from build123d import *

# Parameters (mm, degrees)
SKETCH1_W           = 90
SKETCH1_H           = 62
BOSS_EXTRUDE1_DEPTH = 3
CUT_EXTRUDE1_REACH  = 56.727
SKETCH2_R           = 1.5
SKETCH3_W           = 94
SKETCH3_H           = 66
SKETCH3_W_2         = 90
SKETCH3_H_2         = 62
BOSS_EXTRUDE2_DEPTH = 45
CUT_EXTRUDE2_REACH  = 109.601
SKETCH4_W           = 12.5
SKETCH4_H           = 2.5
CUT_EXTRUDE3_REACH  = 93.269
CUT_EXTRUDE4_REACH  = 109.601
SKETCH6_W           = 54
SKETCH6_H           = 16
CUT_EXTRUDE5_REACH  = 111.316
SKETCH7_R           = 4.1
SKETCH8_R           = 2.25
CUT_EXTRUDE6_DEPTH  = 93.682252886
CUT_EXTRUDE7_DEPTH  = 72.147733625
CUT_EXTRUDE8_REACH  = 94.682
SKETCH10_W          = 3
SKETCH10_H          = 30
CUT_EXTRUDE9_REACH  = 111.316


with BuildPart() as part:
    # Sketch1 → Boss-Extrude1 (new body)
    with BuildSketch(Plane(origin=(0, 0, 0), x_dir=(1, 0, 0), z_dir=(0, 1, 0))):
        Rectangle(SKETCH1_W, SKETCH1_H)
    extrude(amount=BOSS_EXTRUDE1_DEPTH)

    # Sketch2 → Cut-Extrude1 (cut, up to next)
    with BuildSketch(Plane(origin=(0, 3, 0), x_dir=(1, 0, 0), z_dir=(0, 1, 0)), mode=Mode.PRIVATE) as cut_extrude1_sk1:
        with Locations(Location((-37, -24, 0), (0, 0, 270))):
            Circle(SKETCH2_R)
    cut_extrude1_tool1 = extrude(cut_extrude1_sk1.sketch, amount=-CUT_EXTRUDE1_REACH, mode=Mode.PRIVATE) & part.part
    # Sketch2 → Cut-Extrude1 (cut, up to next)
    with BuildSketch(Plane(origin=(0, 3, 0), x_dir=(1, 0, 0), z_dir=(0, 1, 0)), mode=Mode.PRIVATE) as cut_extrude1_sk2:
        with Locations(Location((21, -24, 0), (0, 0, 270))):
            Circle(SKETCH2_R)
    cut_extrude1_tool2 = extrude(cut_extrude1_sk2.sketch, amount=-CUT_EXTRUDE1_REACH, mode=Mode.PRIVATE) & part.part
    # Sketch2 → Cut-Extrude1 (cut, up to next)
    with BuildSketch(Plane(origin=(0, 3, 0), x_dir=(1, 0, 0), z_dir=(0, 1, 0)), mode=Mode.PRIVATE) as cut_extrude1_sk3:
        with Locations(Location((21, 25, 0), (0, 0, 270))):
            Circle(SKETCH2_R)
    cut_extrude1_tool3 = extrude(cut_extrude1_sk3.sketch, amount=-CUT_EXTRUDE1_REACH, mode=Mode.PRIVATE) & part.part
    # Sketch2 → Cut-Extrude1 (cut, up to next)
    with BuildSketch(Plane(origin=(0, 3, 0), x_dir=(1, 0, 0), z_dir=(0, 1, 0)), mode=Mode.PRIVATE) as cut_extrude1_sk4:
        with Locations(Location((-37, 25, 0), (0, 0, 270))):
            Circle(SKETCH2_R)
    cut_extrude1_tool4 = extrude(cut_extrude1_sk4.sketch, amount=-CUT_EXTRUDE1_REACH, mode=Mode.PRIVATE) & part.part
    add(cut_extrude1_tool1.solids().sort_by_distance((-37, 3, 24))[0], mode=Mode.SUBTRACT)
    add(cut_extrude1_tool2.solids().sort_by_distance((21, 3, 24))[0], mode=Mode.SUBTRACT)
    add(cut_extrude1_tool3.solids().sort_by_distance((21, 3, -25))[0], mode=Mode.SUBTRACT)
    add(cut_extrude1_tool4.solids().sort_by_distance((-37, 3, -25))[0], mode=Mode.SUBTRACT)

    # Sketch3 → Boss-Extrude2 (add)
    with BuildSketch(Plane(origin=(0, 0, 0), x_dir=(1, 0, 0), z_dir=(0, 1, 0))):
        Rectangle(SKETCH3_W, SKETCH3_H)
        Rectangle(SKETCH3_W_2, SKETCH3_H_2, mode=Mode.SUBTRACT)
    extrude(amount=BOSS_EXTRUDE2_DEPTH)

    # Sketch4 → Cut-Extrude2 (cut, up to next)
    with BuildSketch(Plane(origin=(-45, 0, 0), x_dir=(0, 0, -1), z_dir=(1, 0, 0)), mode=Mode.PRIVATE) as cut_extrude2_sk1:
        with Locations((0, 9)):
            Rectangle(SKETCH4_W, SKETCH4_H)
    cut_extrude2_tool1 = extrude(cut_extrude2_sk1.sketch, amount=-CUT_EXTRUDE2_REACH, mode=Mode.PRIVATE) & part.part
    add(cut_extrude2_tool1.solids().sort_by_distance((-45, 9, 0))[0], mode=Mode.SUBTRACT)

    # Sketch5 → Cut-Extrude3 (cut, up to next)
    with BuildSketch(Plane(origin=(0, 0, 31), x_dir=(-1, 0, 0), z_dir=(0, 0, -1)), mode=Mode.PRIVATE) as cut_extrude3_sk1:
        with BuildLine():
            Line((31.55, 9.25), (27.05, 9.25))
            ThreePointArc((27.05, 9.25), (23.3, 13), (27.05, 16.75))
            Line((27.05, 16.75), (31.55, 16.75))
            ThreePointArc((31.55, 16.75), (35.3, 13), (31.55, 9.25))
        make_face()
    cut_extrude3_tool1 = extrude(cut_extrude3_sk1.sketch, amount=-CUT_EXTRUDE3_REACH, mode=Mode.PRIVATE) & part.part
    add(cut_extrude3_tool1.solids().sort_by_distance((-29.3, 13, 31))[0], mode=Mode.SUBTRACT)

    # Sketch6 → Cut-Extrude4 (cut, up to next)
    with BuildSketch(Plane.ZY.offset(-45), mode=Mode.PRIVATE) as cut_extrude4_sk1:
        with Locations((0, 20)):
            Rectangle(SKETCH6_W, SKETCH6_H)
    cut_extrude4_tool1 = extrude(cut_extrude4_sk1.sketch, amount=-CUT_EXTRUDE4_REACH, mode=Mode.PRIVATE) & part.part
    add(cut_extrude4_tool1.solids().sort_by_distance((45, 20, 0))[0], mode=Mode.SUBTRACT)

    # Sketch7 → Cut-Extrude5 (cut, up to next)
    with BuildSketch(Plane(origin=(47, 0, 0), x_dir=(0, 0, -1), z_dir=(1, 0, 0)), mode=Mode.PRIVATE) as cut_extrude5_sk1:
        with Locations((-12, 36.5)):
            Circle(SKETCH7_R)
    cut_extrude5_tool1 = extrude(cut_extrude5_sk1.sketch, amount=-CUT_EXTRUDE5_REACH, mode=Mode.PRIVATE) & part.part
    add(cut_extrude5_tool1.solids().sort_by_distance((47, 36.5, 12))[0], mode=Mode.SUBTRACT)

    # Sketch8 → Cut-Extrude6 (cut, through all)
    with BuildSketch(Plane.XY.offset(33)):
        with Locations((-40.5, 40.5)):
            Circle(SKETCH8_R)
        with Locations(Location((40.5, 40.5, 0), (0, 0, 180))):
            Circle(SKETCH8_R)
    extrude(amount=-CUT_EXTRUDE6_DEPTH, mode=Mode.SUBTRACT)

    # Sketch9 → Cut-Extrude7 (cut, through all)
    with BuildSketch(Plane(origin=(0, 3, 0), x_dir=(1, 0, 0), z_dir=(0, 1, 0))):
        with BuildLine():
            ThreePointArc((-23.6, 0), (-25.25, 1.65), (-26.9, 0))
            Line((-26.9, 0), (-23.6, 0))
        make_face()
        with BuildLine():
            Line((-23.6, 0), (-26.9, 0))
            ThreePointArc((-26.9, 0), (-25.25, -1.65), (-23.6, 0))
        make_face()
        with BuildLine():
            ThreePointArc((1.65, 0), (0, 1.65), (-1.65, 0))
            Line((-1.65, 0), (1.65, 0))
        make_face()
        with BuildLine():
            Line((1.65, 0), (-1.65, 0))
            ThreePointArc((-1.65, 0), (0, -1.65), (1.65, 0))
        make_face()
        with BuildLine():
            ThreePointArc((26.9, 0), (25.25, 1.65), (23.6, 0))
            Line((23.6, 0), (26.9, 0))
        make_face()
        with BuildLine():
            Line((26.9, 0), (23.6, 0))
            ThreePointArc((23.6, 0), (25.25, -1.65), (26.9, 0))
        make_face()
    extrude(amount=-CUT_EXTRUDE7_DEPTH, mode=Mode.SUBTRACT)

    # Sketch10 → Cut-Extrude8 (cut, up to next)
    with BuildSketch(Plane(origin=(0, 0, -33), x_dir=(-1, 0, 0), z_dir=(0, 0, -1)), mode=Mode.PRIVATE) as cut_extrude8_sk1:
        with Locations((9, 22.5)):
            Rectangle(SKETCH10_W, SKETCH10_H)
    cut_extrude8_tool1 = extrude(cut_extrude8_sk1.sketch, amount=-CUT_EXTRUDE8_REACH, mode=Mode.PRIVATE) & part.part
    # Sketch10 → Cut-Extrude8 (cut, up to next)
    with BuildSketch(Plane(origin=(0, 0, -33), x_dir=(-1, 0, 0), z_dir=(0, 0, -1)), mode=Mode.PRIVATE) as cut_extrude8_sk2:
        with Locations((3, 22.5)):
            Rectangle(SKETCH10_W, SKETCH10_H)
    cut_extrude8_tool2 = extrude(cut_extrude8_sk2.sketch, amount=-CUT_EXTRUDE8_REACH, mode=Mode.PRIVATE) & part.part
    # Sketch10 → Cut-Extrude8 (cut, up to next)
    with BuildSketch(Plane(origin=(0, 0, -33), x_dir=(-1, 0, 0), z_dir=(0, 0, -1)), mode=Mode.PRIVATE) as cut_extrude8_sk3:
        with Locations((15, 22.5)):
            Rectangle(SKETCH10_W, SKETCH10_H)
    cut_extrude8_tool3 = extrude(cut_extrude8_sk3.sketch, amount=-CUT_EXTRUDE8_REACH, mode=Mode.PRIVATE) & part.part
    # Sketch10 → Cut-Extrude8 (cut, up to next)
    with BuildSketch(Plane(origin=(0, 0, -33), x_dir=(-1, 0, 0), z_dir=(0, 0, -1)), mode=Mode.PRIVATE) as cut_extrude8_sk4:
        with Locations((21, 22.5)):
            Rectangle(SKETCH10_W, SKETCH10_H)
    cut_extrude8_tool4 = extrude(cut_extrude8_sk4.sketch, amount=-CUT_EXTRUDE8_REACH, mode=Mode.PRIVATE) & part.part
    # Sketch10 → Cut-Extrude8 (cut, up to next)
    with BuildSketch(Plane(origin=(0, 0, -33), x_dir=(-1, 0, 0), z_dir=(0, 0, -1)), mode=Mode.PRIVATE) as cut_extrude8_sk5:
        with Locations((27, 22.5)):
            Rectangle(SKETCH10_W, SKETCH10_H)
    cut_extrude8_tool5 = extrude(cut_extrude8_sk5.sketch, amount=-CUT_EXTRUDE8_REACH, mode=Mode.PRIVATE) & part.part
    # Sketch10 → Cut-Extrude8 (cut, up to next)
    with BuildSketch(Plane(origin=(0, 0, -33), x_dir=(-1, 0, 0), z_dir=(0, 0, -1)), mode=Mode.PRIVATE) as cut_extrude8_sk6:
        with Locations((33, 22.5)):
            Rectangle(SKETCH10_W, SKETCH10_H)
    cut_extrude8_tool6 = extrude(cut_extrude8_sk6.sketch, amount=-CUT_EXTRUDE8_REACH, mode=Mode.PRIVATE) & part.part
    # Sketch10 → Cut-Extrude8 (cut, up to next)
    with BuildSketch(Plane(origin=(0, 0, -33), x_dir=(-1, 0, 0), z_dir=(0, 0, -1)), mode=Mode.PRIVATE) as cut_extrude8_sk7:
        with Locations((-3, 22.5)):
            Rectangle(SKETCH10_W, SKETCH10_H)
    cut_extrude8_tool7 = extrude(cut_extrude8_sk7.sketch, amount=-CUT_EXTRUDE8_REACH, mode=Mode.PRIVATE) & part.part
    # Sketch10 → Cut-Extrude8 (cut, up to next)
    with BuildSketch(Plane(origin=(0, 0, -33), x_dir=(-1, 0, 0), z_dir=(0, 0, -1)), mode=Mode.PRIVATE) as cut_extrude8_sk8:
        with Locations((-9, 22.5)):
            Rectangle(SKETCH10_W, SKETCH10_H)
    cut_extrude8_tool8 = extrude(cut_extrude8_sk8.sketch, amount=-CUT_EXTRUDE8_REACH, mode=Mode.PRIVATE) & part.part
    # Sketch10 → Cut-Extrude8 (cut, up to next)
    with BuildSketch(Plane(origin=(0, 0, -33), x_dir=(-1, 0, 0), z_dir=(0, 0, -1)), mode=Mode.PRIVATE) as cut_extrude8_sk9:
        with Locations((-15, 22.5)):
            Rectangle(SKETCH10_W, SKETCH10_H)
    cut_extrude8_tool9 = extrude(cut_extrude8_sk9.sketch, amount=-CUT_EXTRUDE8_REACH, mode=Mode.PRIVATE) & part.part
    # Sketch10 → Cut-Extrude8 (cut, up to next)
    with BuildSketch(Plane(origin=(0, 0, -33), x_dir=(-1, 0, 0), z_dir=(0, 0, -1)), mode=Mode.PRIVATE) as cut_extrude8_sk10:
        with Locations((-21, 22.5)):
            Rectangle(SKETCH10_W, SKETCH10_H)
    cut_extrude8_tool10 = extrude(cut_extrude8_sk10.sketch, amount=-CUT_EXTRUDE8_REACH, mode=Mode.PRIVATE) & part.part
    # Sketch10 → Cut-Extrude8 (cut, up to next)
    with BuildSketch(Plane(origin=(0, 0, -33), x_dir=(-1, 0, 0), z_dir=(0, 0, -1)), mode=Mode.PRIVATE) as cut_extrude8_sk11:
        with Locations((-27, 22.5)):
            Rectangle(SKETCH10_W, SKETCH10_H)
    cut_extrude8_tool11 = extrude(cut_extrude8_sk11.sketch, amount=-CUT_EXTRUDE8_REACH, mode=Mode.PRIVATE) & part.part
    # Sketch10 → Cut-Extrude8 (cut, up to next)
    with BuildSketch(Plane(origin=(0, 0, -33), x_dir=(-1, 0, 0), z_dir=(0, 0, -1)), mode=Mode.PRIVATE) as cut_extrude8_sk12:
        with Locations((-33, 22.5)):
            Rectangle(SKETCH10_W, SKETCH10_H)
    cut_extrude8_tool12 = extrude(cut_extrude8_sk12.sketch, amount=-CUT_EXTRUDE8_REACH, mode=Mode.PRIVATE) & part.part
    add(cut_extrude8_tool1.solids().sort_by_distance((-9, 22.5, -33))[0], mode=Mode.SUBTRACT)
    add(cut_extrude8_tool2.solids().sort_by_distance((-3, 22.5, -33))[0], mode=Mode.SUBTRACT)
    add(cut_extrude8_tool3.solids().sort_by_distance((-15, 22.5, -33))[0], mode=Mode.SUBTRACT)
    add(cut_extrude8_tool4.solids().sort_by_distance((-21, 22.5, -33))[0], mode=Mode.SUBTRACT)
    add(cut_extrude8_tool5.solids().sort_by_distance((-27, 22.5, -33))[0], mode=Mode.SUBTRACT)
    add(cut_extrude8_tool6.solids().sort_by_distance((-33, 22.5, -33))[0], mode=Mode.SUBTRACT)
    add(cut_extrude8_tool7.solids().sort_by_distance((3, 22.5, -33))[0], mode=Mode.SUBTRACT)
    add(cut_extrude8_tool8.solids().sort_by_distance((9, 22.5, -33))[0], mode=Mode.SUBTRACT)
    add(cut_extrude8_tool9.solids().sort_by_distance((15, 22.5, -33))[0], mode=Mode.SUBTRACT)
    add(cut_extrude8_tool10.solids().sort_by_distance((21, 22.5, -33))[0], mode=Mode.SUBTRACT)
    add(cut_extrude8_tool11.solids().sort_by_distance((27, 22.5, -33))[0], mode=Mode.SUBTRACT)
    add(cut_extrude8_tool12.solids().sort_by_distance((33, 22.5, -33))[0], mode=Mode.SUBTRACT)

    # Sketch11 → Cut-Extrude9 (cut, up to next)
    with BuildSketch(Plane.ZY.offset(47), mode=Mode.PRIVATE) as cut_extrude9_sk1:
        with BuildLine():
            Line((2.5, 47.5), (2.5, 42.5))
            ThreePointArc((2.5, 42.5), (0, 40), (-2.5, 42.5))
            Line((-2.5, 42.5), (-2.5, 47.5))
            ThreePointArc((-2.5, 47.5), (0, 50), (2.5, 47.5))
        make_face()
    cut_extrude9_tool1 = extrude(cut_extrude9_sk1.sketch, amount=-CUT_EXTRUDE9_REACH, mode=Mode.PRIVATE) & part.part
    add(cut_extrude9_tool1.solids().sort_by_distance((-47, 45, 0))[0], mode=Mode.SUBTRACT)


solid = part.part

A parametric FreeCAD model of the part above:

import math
import FreeCAD as App
import Part
import Sketcher


def add_polygon(sketch, points):
    """Adds a closed chain of lines whose ends are joined by coincident constraints."""
    first, n = sketch.GeometryCount, len(points)
    for a, b in zip(points, points[1:] + points[:1]):
        sketch.addGeometry(Part.LineSegment(App.Vector(*a, 0), App.Vector(*b, 0)), False)
    for i in range(n):
        sketch.addConstraint(Sketcher.Constraint("Coincident", first + i, 2, first + (i + 1) % n, 1))

doc = App.newDocument("Part")
body = doc.addObject("PartDesign::Body", "Body")

# Sketch on XZ plane
sketch1 = doc.addObject("Sketcher::SketchObject", "Sketch")
body.addObject(sketch1)
sketch1.AttachmentSupport = (doc.XZ_Plane, [""])
sketch1.MapMode = "FlatFace"
add_polygon(sketch1, [(-45, -31), (-45, 31), (45, 31), (45, -31)])  # lines 0-3
sketch1.addConstraint(Sketcher.Constraint("Vertical", 0))
sketch1.addConstraint(Sketcher.Constraint("Horizontal", 1))
sketch1.addConstraint(Sketcher.Constraint("Vertical", 2))
sketch1.addConstraint(Sketcher.Constraint("Horizontal", 3))
sketch1.addConstraint(Sketcher.Constraint("Symmetric", 0, 2, 2, 2, -1, 1))
sketch1.addConstraint(Sketcher.Constraint("DistanceX", 1, 1, 1, 2, 90.0))
sketch1.addConstraint(Sketcher.Constraint("DistanceY", 0, 1, 0, 2, 62.0))
pad1 = doc.addObject("PartDesign::Pad", "Pad")
body.addObject(pad1)
pad1.Profile = sketch1
pad1.Length = 3
pad1.Reversed = True

# Sketch on XZ plane
sketch2 = doc.addObject("Sketcher::SketchObject", "Sketch001")
body.addObject(sketch2)
sketch2.AttachmentSupport = (doc.XZ_Plane, [""])
sketch2.MapMode = "FlatFace"
sketch2.AttachmentOffset = App.Placement(App.Vector(0, 0, -3), App.Rotation())
sketch2.addGeometry(Part.Circle(App.Vector(-37, 24, 0), App.Vector(0, 0, 1), 1.5), False)
sketch2.addConstraint(Sketcher.Constraint("Diameter", 0, 3.0))
sketch2.addConstraint(Sketcher.Constraint("DistanceX", 0, 3, -1, 1, 37.0))
sketch2.addConstraint(Sketcher.Constraint("DistanceY", -1, 1, 0, 3, 24.0))
pocket1 = doc.addObject("PartDesign::Pocket", "Pocket")
body.addObject(pocket1)
pocket1.Profile = sketch2
pocket1.Type = "UpToFirst"
pocket1.Reversed = True

# Sketch on XZ plane
sketch3 = doc.addObject("Sketcher::SketchObject", "Sketch002")
body.addObject(sketch3)
sketch3.AttachmentSupport = (doc.XZ_Plane, [""])
sketch3.MapMode = "FlatFace"
sketch3.AttachmentOffset = App.Placement(App.Vector(0, 0, -3), App.Rotation())
sketch3.addGeometry(Part.Circle(App.Vector(21, 24, 0), App.Vector(0, 0, 1), 1.5), False)
sketch3.addConstraint(Sketcher.Constraint("Diameter", 0, 3.0))
sketch3.addConstraint(Sketcher.Constraint("DistanceX", -1, 1, 0, 3, 21.0))
sketch3.addConstraint(Sketcher.Constraint("DistanceY", -1, 1, 0, 3, 24.0))
pocket2 = doc.addObject("PartDesign::Pocket", "Pocket001")
body.addObject(pocket2)
pocket2.Profile = sketch3
pocket2.Type = "UpToFirst"
pocket2.Reversed = True

# Sketch on XZ plane
sketch4 = doc.addObject("Sketcher::SketchObject", "Sketch003")
body.addObject(sketch4)
sketch4.AttachmentSupport = (doc.XZ_Plane, [""])
sketch4.MapMode = "FlatFace"
sketch4.AttachmentOffset = App.Placement(App.Vector(0, 0, -3), App.Rotation())
sketch4.addGeometry(Part.Circle(App.Vector(21, -25, 0), App.Vector(0, 0, 1), 1.5), False)
sketch4.addConstraint(Sketcher.Constraint("Diameter", 0, 3.0))
sketch4.addConstraint(Sketcher.Constraint("DistanceX", -1, 1, 0, 3, 21.0))
sketch4.addConstraint(Sketcher.Constraint("DistanceY", 0, 3, -1, 1, 25.0))
pocket3 = doc.addObject("PartDesign::Pocket", "Pocket002")
body.addObject(pocket3)
pocket3.Profile = sketch4
pocket3.Type = "UpToFirst"
pocket3.Reversed = True

# Sketch on XZ plane
sketch5 = doc.addObject("Sketcher::SketchObject", "Sketch004")
body.addObject(sketch5)
sketch5.AttachmentSupport = (doc.XZ_Plane, [""])
sketch5.MapMode = "FlatFace"
sketch5.AttachmentOffset = App.Placement(App.Vector(0, 0, -3), App.Rotation())
sketch5.addGeometry(Part.Circle(App.Vector(-37, -25, 0), App.Vector(0, 0, 1), 1.5), False)
sketch5.addConstraint(Sketcher.Constraint("Diameter", 0, 3.0))
sketch5.addConstraint(Sketcher.Constraint("DistanceX", 0, 3, -1, 1, 37.0))
sketch5.addConstraint(Sketcher.Constraint("DistanceY", 0, 3, -1, 1, 25.0))
pocket4 = doc.addObject("PartDesign::Pocket", "Pocket003")
body.addObject(pocket4)
pocket4.Profile = sketch5
pocket4.Type = "UpToFirst"
pocket4.Reversed = True

# Sketch on XZ plane
sketch6 = doc.addObject("Sketcher::SketchObject", "Sketch005")
body.addObject(sketch6)
sketch6.AttachmentSupport = (doc.XZ_Plane, [""])
sketch6.MapMode = "FlatFace"
add_polygon(sketch6, [(-47, -33), (-47, 33), (47, 33), (47, -33)])  # lines 0-3
add_polygon(sketch6, [(45, 31), (-45, 31), (-45, -31), (45, -31)])  # lines 4-7
sketch6.addConstraint(Sketcher.Constraint("Vertical", 0))
sketch6.addConstraint(Sketcher.Constraint("Horizontal", 1))
sketch6.addConstraint(Sketcher.Constraint("Vertical", 2))
sketch6.addConstraint(Sketcher.Constraint("Horizontal", 3))
sketch6.addConstraint(Sketcher.Constraint("Horizontal", 4))
sketch6.addConstraint(Sketcher.Constraint("Vertical", 5))
sketch6.addConstraint(Sketcher.Constraint("Horizontal", 6))
sketch6.addConstraint(Sketcher.Constraint("Vertical", 7))
sketch6.addConstraint(Sketcher.Constraint("Symmetric", 0, 2, 2, 2, -1, 1))
sketch6.addConstraint(Sketcher.Constraint("Symmetric", 4, 2, 6, 2, -1, 1))
sketch6.addConstraint(Sketcher.Constraint("DistanceX", 1, 1, 1, 2, 94.0))
sketch6.addConstraint(Sketcher.Constraint("DistanceX", 4, 2, 4, 1, 90.0))
sketch6.addConstraint(Sketcher.Constraint("DistanceY", 0, 1, 0, 2, 66.0))
sketch6.addConstraint(Sketcher.Constraint("DistanceY", 5, 2, 5, 1, 62.0))
pad2 = doc.addObject("PartDesign::Pad", "Pad001")
body.addObject(pad2)
pad2.Profile = sketch6
pad2.Length = 45
pad2.Reversed = True

# Sketch on YZ plane
sketch7 = doc.addObject("Sketcher::SketchObject", "Sketch006")
body.addObject(sketch7)
sketch7.AttachmentSupport = (doc.YZ_Plane, [""])
sketch7.MapMode = "FlatFace"
sketch7.AttachmentOffset = App.Placement(App.Vector(0, 0, -45), App.Rotation())
add_polygon(sketch7, [(10.25, 6.25), (7.75, 6.25), (7.75, -6.25), (10.25, -6.25)])  # lines 0-3
sketch7.addConstraint(Sketcher.Constraint("Horizontal", 0))
sketch7.addConstraint(Sketcher.Constraint("Vertical", 1))
sketch7.addConstraint(Sketcher.Constraint("Horizontal", 2))
sketch7.addConstraint(Sketcher.Constraint("Vertical", 3))
sketch7.addConstraint(Sketcher.Constraint("DistanceX", 0, 2, 0, 1, 2.5))
sketch7.addConstraint(Sketcher.Constraint("DistanceY", 1, 2, 1, 1, 12.5))
sketch7.addConstraint(Sketcher.Constraint("DistanceX", -1, 1, 0, 2, 7.75))
sketch7.addConstraint(Sketcher.Constraint("DistanceY", -1, 1, 0, 2, 6.25))
pocket5 = doc.addObject("PartDesign::Pocket", "Pocket004")
body.addObject(pocket5)
pocket5.Profile = sketch7
pocket5.Type = "UpToFirst"

# Sketch on XY plane
sketch8 = doc.addObject("Sketcher::SketchObject", "Sketch007")
body.addObject(sketch8)
sketch8.AttachmentSupport = (doc.XY_Plane, [""])
sketch8.MapMode = "FlatFace"
sketch8.AttachmentOffset = App.Placement(App.Vector(0, 0, 31), App.Rotation())
sketch8.addGeometry(Part.LineSegment(App.Vector(-27.05, 9.25, 0), App.Vector(-31.55, 9.25, 0)), False)
sketch8.addGeometry(Part.ArcOfCircle(Part.Circle(App.Vector(-31.55, 13, 0), App.Vector(0, 0, 1), 3.75), math.radians(90), math.radians(270)), False)
sketch8.addGeometry(Part.LineSegment(App.Vector(-31.55, 16.75, 0), App.Vector(-27.05, 16.75, 0)), False)
sketch8.addGeometry(Part.ArcOfCircle(Part.Circle(App.Vector(-27.05, 13, 0), App.Vector(0, 0, 1), 3.75), math.radians(-90), math.radians(90)), False)
sketch8.addConstraint(Sketcher.Constraint("Tangent", 0, 2, 1, 2))
sketch8.addConstraint(Sketcher.Constraint("Tangent", 1, 1, 2, 1))
sketch8.addConstraint(Sketcher.Constraint("Tangent", 2, 2, 3, 2))
sketch8.addConstraint(Sketcher.Constraint("Tangent", 3, 1, 0, 1))
sketch8.addConstraint(Sketcher.Constraint("Horizontal", 0))
sketch8.addConstraint(Sketcher.Constraint("Horizontal", 2))
sketch8.addConstraint(Sketcher.Constraint("Radius", 1, 3.75))
sketch8.addConstraint(Sketcher.Constraint("DistanceX", 0, 2, 0, 1, 4.5))
sketch8.addConstraint(Sketcher.Constraint("DistanceY", -1, 1, 1, 3, 13.0))
sketch8.addConstraint(Sketcher.Constraint("DistanceX", 1, 3, -1, 1, 31.55))
pocket6 = doc.addObject("PartDesign::Pocket", "Pocket005")
body.addObject(pocket6)
pocket6.Profile = sketch8
pocket6.Type = "UpToFirst"
pocket6.Reversed = True

# Sketch on YZ plane
sketch9 = doc.addObject("Sketcher::SketchObject", "Sketch008")
body.addObject(sketch9)
sketch9.AttachmentSupport = (doc.YZ_Plane, [""])
sketch9.MapMode = "FlatFace"
sketch9.AttachmentOffset = App.Placement(App.Vector(0, 0, 45), App.Rotation())
add_polygon(sketch9, [(28, -27), (12, -27), (12, 27), (28, 27)])  # lines 0-3
sketch9.addConstraint(Sketcher.Constraint("Horizontal", 0))
sketch9.addConstraint(Sketcher.Constraint("Vertical", 1))
sketch9.addConstraint(Sketcher.Constraint("Horizontal", 2))
sketch9.addConstraint(Sketcher.Constraint("Vertical", 3))
sketch9.addConstraint(Sketcher.Constraint("DistanceX", 0, 2, 0, 1, 16.0))
sketch9.addConstraint(Sketcher.Constraint("DistanceY", 1, 1, 1, 2, 54.0))
sketch9.addConstraint(Sketcher.Constraint("DistanceX", -1, 1, 0, 2, 12.0))
sketch9.addConstraint(Sketcher.Constraint("DistanceY", 0, 2, -1, 1, 27.0))
pocket7 = doc.addObject("PartDesign::Pocket", "Pocket006")
body.addObject(pocket7)
pocket7.Profile = sketch9
pocket7.Type = "UpToFirst"
pocket7.Reversed = True

# Sketch on YZ plane
sketch10 = doc.addObject("Sketcher::SketchObject", "Sketch009")
body.addObject(sketch10)
sketch10.AttachmentSupport = (doc.YZ_Plane, [""])
sketch10.MapMode = "FlatFace"
sketch10.AttachmentOffset = App.Placement(App.Vector(0, 0, 47), App.Rotation())
sketch10.addGeometry(Part.Circle(App.Vector(36.5, 12, 0), App.Vector(0, 0, 1), 4.1), False)
sketch10.addConstraint(Sketcher.Constraint("Diameter", 0, 8.2))
sketch10.addConstraint(Sketcher.Constraint("DistanceY", -1, 1, 0, 3, 12.0))
sketch10.addConstraint(Sketcher.Constraint("DistanceX", -1, 1, 0, 3, 36.5))
pocket8 = doc.addObject("PartDesign::Pocket", "Pocket007")
body.addObject(pocket8)
pocket8.Profile = sketch10
pocket8.Type = "UpToFirst"

# Sketch on XY plane
sketch11 = doc.addObject("Sketcher::SketchObject", "Sketch010")
body.addObject(sketch11)
sketch11.AttachmentSupport = (doc.XY_Plane, [""])
sketch11.MapMode = "FlatFace"
sketch11.AttachmentOffset = App.Placement(App.Vector(0, 0, 33), App.Rotation())
sketch11.addGeometry(Part.Circle(App.Vector(-40.5, 40.5, 0), App.Vector(0, 0, 1), 2.25), False)
sketch11.addGeometry(Part.Circle(App.Vector(40.5, 40.5, 0), App.Vector(0, 0, 1), 2.25), False)
sketch11.addConstraint(Sketcher.Constraint("Equal", 0, 1))
sketch11.addConstraint(Sketcher.Constraint("Symmetric", 0, 3, 1, 3, -2))
sketch11.addConstraint(Sketcher.Constraint("Diameter", 0, 4.5))
sketch11.addConstraint(Sketcher.Constraint("DistanceX", 0, 3, 1, 3, 81.0))
sketch11.addConstraint(Sketcher.Constraint("DistanceY", -1, 1, 0, 3, 40.5))
pocket9 = doc.addObject("PartDesign::Pocket", "Pocket008")
body.addObject(pocket9)
pocket9.Profile = sketch11
pocket9.Type = "ThroughAll"

# Sketch on XZ plane
sketch12 = doc.addObject("Sketcher::SketchObject", "Sketch011")
body.addObject(sketch12)
sketch12.AttachmentSupport = (doc.XZ_Plane, [""])
sketch12.MapMode = "FlatFace"
sketch12.AttachmentOffset = App.Placement(App.Vector(0, 0, -3), App.Rotation())
sketch12.addGeometry(Part.Circle(App.Vector(-25.25, 0, 0), App.Vector(0, 0, 1), 1.65), False)
sketch12.addGeometry(Part.Circle(App.Vector(0, 0, 0), App.Vector(0, 0, 1), 1.65), False)
sketch12.addGeometry(Part.Circle(App.Vector(25.25, 0, 0), App.Vector(0, 0, 1), 1.65), False)
sketch12.addConstraint(Sketcher.Constraint("Coincident", 1, 3, -1, 1))
sketch12.addConstraint(Sketcher.Constraint("Equal", 0, 1))
sketch12.addConstraint(Sketcher.Constraint("Equal", 1, 2))
sketch12.addConstraint(Sketcher.Constraint("Symmetric", 0, 3, 2, 3, -1, 1))
sketch12.addConstraint(Sketcher.Constraint("PointOnObject", 0, 3, -1))
sketch12.addConstraint(Sketcher.Constraint("Diameter", 0, 3.3))
sketch12.addConstraint(Sketcher.Constraint("DistanceX", 0, 3, 2, 3, 50.5))
pocket10 = doc.addObject("PartDesign::Pocket", "Pocket009")
body.addObject(pocket10)
pocket10.Profile = sketch12
pocket10.Type = "ThroughAll"
pocket10.Reversed = True

# Sketch on XY plane
sketch13 = doc.addObject("Sketcher::SketchObject", "Sketch012")
body.addObject(sketch13)
sketch13.AttachmentSupport = (doc.XY_Plane, [""])
sketch13.MapMode = "FlatFace"
sketch13.AttachmentOffset = App.Placement(App.Vector(0, 0, -33), App.Rotation())
add_polygon(sketch13, [(-7.5, 37.5), (-7.5, 7.5), (-10.5, 7.5), (-10.5, 37.5)])  # lines 0-3
sketch13.addConstraint(Sketcher.Constraint("Vertical", 0))
sketch13.addConstraint(Sketcher.Constraint("Horizontal", 1))
sketch13.addConstraint(Sketcher.Constraint("Vertical", 2))
sketch13.addConstraint(Sketcher.Constraint("Horizontal", 3))
sketch13.addConstraint(Sketcher.Constraint("DistanceX", 1, 2, 1, 1, 3.0))
sketch13.addConstraint(Sketcher.Constraint("DistanceY", 0, 2, 0, 1, 30.0))
sketch13.addConstraint(Sketcher.Constraint("DistanceX", 0, 2, -1, 1, 7.5))
sketch13.addConstraint(Sketcher.Constraint("DistanceY", -1, 1, 0, 2, 7.5))
pocket11 = doc.addObject("PartDesign::Pocket", "Pocket010")
body.addObject(pocket11)
pocket11.Profile = sketch13
pocket11.Type = "UpToFirst"
pocket11.Reversed = True

# Sketch on XY plane
sketch14 = doc.addObject("Sketcher::SketchObject", "Sketch013")
body.addObject(sketch14)
sketch14.AttachmentSupport = (doc.XY_Plane, [""])
sketch14.MapMode = "FlatFace"
sketch14.AttachmentOffset = App.Placement(App.Vector(0, 0, -33), App.Rotation())
add_polygon(sketch14, [(-1.5, 37.5), (-1.5, 7.5), (-4.5, 7.5), (-4.5, 37.5)])  # lines 0-3
sketch14.addConstraint(Sketcher.Constraint("Vertical", 0))
sketch14.addConstraint(Sketcher.Constraint("Horizontal", 1))
sketch14.addConstraint(Sketcher.Constraint("Vertical", 2))
sketch14.addConstraint(Sketcher.Constraint("Horizontal", 3))
sketch14.addConstraint(Sketcher.Constraint("DistanceX", 1, 2, 1, 1, 3.0))
sketch14.addConstraint(Sketcher.Constraint("DistanceY", 0, 2, 0, 1, 30.0))
sketch14.addConstraint(Sketcher.Constraint("DistanceX", 0, 2, -1, 1, 1.5))
sketch14.addConstraint(Sketcher.Constraint("DistanceY", -1, 1, 0, 2, 7.5))
pocket12 = doc.addObject("PartDesign::Pocket", "Pocket011")
body.addObject(pocket12)
pocket12.Profile = sketch14
pocket12.Type = "UpToFirst"
pocket12.Reversed = True

# Sketch on XY plane
sketch15 = doc.addObject("Sketcher::SketchObject", "Sketch014")
body.addObject(sketch15)
sketch15.AttachmentSupport = (doc.XY_Plane, [""])
sketch15.MapMode = "FlatFace"
sketch15.AttachmentOffset = App.Placement(App.Vector(0, 0, -33), App.Rotation())
add_polygon(sketch15, [(-13.5, 37.5), (-13.5, 7.5), (-16.5, 7.5), (-16.5, 37.5)])  # lines 0-3
sketch15.addConstraint(Sketcher.Constraint("Vertical", 0))
sketch15.addConstraint(Sketcher.Constraint("Horizontal", 1))
sketch15.addConstraint(Sketcher.Constraint("Vertical", 2))
sketch15.addConstraint(Sketcher.Constraint("Horizontal", 3))
sketch15.addConstraint(Sketcher.Constraint("DistanceX", 1, 2, 1, 1, 3.0))
sketch15.addConstraint(Sketcher.Constraint("DistanceY", 0, 2, 0, 1, 30.0))
sketch15.addConstraint(Sketcher.Constraint("DistanceX", 0, 2, -1, 1, 13.5))
sketch15.addConstraint(Sketcher.Constraint("DistanceY", -1, 1, 0, 2, 7.5))
pocket13 = doc.addObject("PartDesign::Pocket", "Pocket012")
body.addObject(pocket13)
pocket13.Profile = sketch15
pocket13.Type = "UpToFirst"
pocket13.Reversed = True

# Sketch on XY plane
sketch16 = doc.addObject("Sketcher::SketchObject", "Sketch015")
body.addObject(sketch16)
sketch16.AttachmentSupport = (doc.XY_Plane, [""])
sketch16.MapMode = "FlatFace"
sketch16.AttachmentOffset = App.Placement(App.Vector(0, 0, -33), App.Rotation())
add_polygon(sketch16, [(-19.5, 37.5), (-19.5, 7.5), (-22.5, 7.5), (-22.5, 37.5)])  # lines 0-3
sketch16.addConstraint(Sketcher.Constraint("Vertical", 0))
sketch16.addConstraint(Sketcher.Constraint("Horizontal", 1))
sketch16.addConstraint(Sketcher.Constraint("Vertical", 2))
sketch16.addConstraint(Sketcher.Constraint("Horizontal", 3))
sketch16.addConstraint(Sketcher.Constraint("DistanceX", 1, 2, 1, 1, 3.0))
sketch16.addConstraint(Sketcher.Constraint("DistanceY", 0, 2, 0, 1, 30.0))
sketch16.addConstraint(Sketcher.Constraint("DistanceX", 0, 2, -1, 1, 19.5))
sketch16.addConstraint(Sketcher.Constraint("DistanceY", -1, 1, 0, 2, 7.5))
pocket14 = doc.addObject("PartDesign::Pocket", "Pocket013")
body.addObject(pocket14)
pocket14.Profile = sketch16
pocket14.Type = "UpToFirst"
pocket14.Reversed = True

# Sketch on XY plane
sketch17 = doc.addObject("Sketcher::SketchObject", "Sketch016")
body.addObject(sketch17)
sketch17.AttachmentSupport = (doc.XY_Plane, [""])
sketch17.MapMode = "FlatFace"
sketch17.AttachmentOffset = App.Placement(App.Vector(0, 0, -33), App.Rotation())
add_polygon(sketch17, [(-25.5, 37.5), (-25.5, 7.5), (-28.5, 7.5), (-28.5, 37.5)])  # lines 0-3
sketch17.addConstraint(Sketcher.Constraint("Vertical", 0))
sketch17.addConstraint(Sketcher.Constraint("Horizontal", 1))
sketch17.addConstraint(Sketcher.Constraint("Vertical", 2))
sketch17.addConstraint(Sketcher.Constraint("Horizontal", 3))
sketch17.addConstraint(Sketcher.Constraint("DistanceX", 1, 2, 1, 1, 3.0))
sketch17.addConstraint(Sketcher.Constraint("DistanceY", 0, 2, 0, 1, 30.0))
sketch17.addConstraint(Sketcher.Constraint("DistanceX", 0, 2, -1, 1, 25.5))
sketch17.addConstraint(Sketcher.Constraint("DistanceY", -1, 1, 0, 2, 7.5))
pocket15 = doc.addObject("PartDesign::Pocket", "Pocket014")
body.addObject(pocket15)
pocket15.Profile = sketch17
pocket15.Type = "UpToFirst"
pocket15.Reversed = True

# Sketch on XY plane
sketch18 = doc.addObject("Sketcher::SketchObject", "Sketch017")
body.addObject(sketch18)
sketch18.AttachmentSupport = (doc.XY_Plane, [""])
sketch18.MapMode = "FlatFace"
sketch18.AttachmentOffset = App.Placement(App.Vector(0, 0, -33), App.Rotation())
add_polygon(sketch18, [(-31.5, 37.5), (-31.5, 7.5), (-34.5, 7.5), (-34.5, 37.5)])  # lines 0-3
sketch18.addConstraint(Sketcher.Constraint("Vertical", 0))
sketch18.addConstraint(Sketcher.Constraint("Horizontal", 1))
sketch18.addConstraint(Sketcher.Constraint("Vertical", 2))
sketch18.addConstraint(Sketcher.Constraint("Horizontal", 3))
sketch18.addConstraint(Sketcher.Constraint("DistanceX", 1, 2, 1, 1, 3.0))
sketch18.addConstraint(Sketcher.Constraint("DistanceY", 0, 2, 0, 1, 30.0))
sketch18.addConstraint(Sketcher.Constraint("DistanceX", 0, 2, -1, 1, 31.5))
sketch18.addConstraint(Sketcher.Constraint("DistanceY", -1, 1, 0, 2, 7.5))
pocket16 = doc.addObject("PartDesign::Pocket", "Pocket015")
body.addObject(pocket16)
pocket16.Profile = sketch18
pocket16.Type = "UpToFirst"
pocket16.Reversed = True

# Sketch on XY plane
sketch19 = doc.addObject("Sketcher::SketchObject", "Sketch018")
body.addObject(sketch19)
sketch19.AttachmentSupport = (doc.XY_Plane, [""])
sketch19.MapMode = "FlatFace"
sketch19.AttachmentOffset = App.Placement(App.Vector(0, 0, -33), App.Rotation())
add_polygon(sketch19, [(4.5, 37.5), (4.5, 7.5), (1.5, 7.5), (1.5, 37.5)])  # lines 0-3
sketch19.addConstraint(Sketcher.Constraint("Vertical", 0))
sketch19.addConstraint(Sketcher.Constraint("Horizontal", 1))
sketch19.addConstraint(Sketcher.Constraint("Vertical", 2))
sketch19.addConstraint(Sketcher.Constraint("Horizontal", 3))
sketch19.addConstraint(Sketcher.Constraint("DistanceX", 1, 2, 1, 1, 3.0))
sketch19.addConstraint(Sketcher.Constraint("DistanceY", 0, 2, 0, 1, 30.0))
sketch19.addConstraint(Sketcher.Constraint("DistanceX", -1, 1, 0, 2, 4.5))
sketch19.addConstraint(Sketcher.Constraint("DistanceY", -1, 1, 0, 2, 7.5))
pocket17 = doc.addObject("PartDesign::Pocket", "Pocket016")
body.addObject(pocket17)
pocket17.Profile = sketch19
pocket17.Type = "UpToFirst"
pocket17.Reversed = True

# Sketch on XY plane
sketch20 = doc.addObject("Sketcher::SketchObject", "Sketch019")
body.addObject(sketch20)
sketch20.AttachmentSupport = (doc.XY_Plane, [""])
sketch20.MapMode = "FlatFace"
sketch20.AttachmentOffset = App.Placement(App.Vector(0, 0, -33), App.Rotation())
add_polygon(sketch20, [(10.5, 37.5), (10.5, 7.5), (7.5, 7.5), (7.5, 37.5)])  # lines 0-3
sketch20.addConstraint(Sketcher.Constraint("Vertical", 0))
sketch20.addConstraint(Sketcher.Constraint("Horizontal", 1))
sketch20.addConstraint(Sketcher.Constraint("Vertical", 2))
sketch20.addConstraint(Sketcher.Constraint("Horizontal", 3))
sketch20.addConstraint(Sketcher.Constraint("DistanceX", 1, 2, 1, 1, 3.0))
sketch20.addConstraint(Sketcher.Constraint("DistanceY", 0, 2, 0, 1, 30.0))
sketch20.addConstraint(Sketcher.Constraint("DistanceX", -1, 1, 0, 2, 10.5))
sketch20.addConstraint(Sketcher.Constraint("DistanceY", -1, 1, 0, 2, 7.5))
pocket18 = doc.addObject("PartDesign::Pocket", "Pocket017")
body.addObject(pocket18)
pocket18.Profile = sketch20
pocket18.Type = "UpToFirst"
pocket18.Reversed = True

# Sketch on XY plane
sketch21 = doc.addObject("Sketcher::SketchObject", "Sketch020")
body.addObject(sketch21)
sketch21.AttachmentSupport = (doc.XY_Plane, [""])
sketch21.MapMode = "FlatFace"
sketch21.AttachmentOffset = App.Placement(App.Vector(0, 0, -33), App.Rotation())
add_polygon(sketch21, [(16.5, 37.5), (16.5, 7.5), (13.5, 7.5), (13.5, 37.5)])  # lines 0-3
sketch21.addConstraint(Sketcher.Constraint("Vertical", 0))
sketch21.addConstraint(Sketcher.Constraint("Horizontal", 1))
sketch21.addConstraint(Sketcher.Constraint("Vertical", 2))
sketch21.addConstraint(Sketcher.Constraint("Horizontal", 3))
sketch21.addConstraint(Sketcher.Constraint("DistanceX", 1, 2, 1, 1, 3.0))
sketch21.addConstraint(Sketcher.Constraint("DistanceY", 0, 2, 0, 1, 30.0))
sketch21.addConstraint(Sketcher.Constraint("DistanceX", -1, 1, 0, 2, 16.5))
sketch21.addConstraint(Sketcher.Constraint("DistanceY", -1, 1, 0, 2, 7.5))
pocket19 = doc.addObject("PartDesign::Pocket", "Pocket018")
body.addObject(pocket19)
pocket19.Profile = sketch21
pocket19.Type = "UpToFirst"
pocket19.Reversed = True

# Sketch on XY plane
sketch22 = doc.addObject("Sketcher::SketchObject", "Sketch021")
body.addObject(sketch22)
sketch22.AttachmentSupport = (doc.XY_Plane, [""])
sketch22.MapMode = "FlatFace"
sketch22.AttachmentOffset = App.Placement(App.Vector(0, 0, -33), App.Rotation())
add_polygon(sketch22, [(22.5, 37.5), (22.5, 7.5), (19.5, 7.5), (19.5, 37.5)])  # lines 0-3
sketch22.addConstraint(Sketcher.Constraint("Vertical", 0))
sketch22.addConstraint(Sketcher.Constraint("Horizontal", 1))
sketch22.addConstraint(Sketcher.Constraint("Vertical", 2))
sketch22.addConstraint(Sketcher.Constraint("Horizontal", 3))
sketch22.addConstraint(Sketcher.Constraint("DistanceX", 1, 2, 1, 1, 3.0))
sketch22.addConstraint(Sketcher.Constraint("DistanceY", 0, 2, 0, 1, 30.0))
sketch22.addConstraint(Sketcher.Constraint("DistanceX", -1, 1, 0, 2, 22.5))
sketch22.addConstraint(Sketcher.Constraint("DistanceY", -1, 1, 0, 2, 7.5))
pocket20 = doc.addObject("PartDesign::Pocket", "Pocket019")
body.addObject(pocket20)
pocket20.Profile = sketch22
pocket20.Type = "UpToFirst"
pocket20.Reversed = True

# Sketch on XY plane
sketch23 = doc.addObject("Sketcher::SketchObject", "Sketch022")
body.addObject(sketch23)
sketch23.AttachmentSupport = (doc.XY_Plane, [""])
sketch23.MapMode = "FlatFace"
sketch23.AttachmentOffset = App.Placement(App.Vector(0, 0, -33), App.Rotation())
add_polygon(sketch23, [(28.5, 37.5), (28.5, 7.5), (25.5, 7.5), (25.5, 37.5)])  # lines 0-3
sketch23.addConstraint(Sketcher.Constraint("Vertical", 0))
sketch23.addConstraint(Sketcher.Constraint("Horizontal", 1))
sketch23.addConstraint(Sketcher.Constraint("Vertical", 2))
sketch23.addConstraint(Sketcher.Constraint("Horizontal", 3))
sketch23.addConstraint(Sketcher.Constraint("DistanceX", 1, 2, 1, 1, 3.0))
sketch23.addConstraint(Sketcher.Constraint("DistanceY", 0, 2, 0, 1, 30.0))
sketch23.addConstraint(Sketcher.Constraint("DistanceX", -1, 1, 0, 2, 28.5))
sketch23.addConstraint(Sketcher.Constraint("DistanceY", -1, 1, 0, 2, 7.5))
pocket21 = doc.addObject("PartDesign::Pocket", "Pocket020")
body.addObject(pocket21)
pocket21.Profile = sketch23
pocket21.Type = "UpToFirst"
pocket21.Reversed = True

# Sketch on XY plane
sketch24 = doc.addObject("Sketcher::SketchObject", "Sketch023")
body.addObject(sketch24)
sketch24.AttachmentSupport = (doc.XY_Plane, [""])
sketch24.MapMode = "FlatFace"
sketch24.AttachmentOffset = App.Placement(App.Vector(0, 0, -33), App.Rotation())
add_polygon(sketch24, [(34.5, 37.5), (34.5, 7.5), (31.5, 7.5), (31.5, 37.5)])  # lines 0-3
sketch24.addConstraint(Sketcher.Constraint("Vertical", 0))
sketch24.addConstraint(Sketcher.Constraint("Horizontal", 1))
sketch24.addConstraint(Sketcher.Constraint("Vertical", 2))
sketch24.addConstraint(Sketcher.Constraint("Horizontal", 3))
sketch24.addConstraint(Sketcher.Constraint("DistanceX", 1, 2, 1, 1, 3.0))
sketch24.addConstraint(Sketcher.Constraint("DistanceY", 0, 2, 0, 1, 30.0))
sketch24.addConstraint(Sketcher.Constraint("DistanceX", -1, 1, 0, 2, 34.5))
sketch24.addConstraint(Sketcher.Constraint("DistanceY", -1, 1, 0, 2, 7.5))
pocket22 = doc.addObject("PartDesign::Pocket", "Pocket021")
body.addObject(pocket22)
pocket22.Profile = sketch24
pocket22.Type = "UpToFirst"
pocket22.Reversed = True

# Sketch on YZ plane
sketch25 = doc.addObject("Sketcher::SketchObject", "Sketch024")
body.addObject(sketch25)
sketch25.AttachmentSupport = (doc.YZ_Plane, [""])
sketch25.MapMode = "FlatFace"
sketch25.AttachmentOffset = App.Placement(App.Vector(0, 0, -47), App.Rotation())
sketch25.addGeometry(Part.LineSegment(App.Vector(42.5, 2.5, 0), App.Vector(47.5, 2.5, 0)), False)
sketch25.addGeometry(Part.ArcOfCircle(Part.Circle(App.Vector(47.5, 0, 0), App.Vector(0, 0, 1), 2.5), math.radians(-90), math.radians(90)), False)
sketch25.addGeometry(Part.LineSegment(App.Vector(47.5, -2.5, 0), App.Vector(42.5, -2.5, 0)), False)
sketch25.addGeometry(Part.ArcOfCircle(Part.Circle(App.Vector(42.5, 0, 0), App.Vector(0, 0, 1), 2.5), math.radians(90), math.radians(270)), False)
sketch25.addConstraint(Sketcher.Constraint("Tangent", 0, 2, 1, 2))
sketch25.addConstraint(Sketcher.Constraint("Tangent", 1, 1, 2, 1))
sketch25.addConstraint(Sketcher.Constraint("Tangent", 2, 2, 3, 2))
sketch25.addConstraint(Sketcher.Constraint("Tangent", 3, 1, 0, 1))
sketch25.addConstraint(Sketcher.Constraint("Horizontal", 0))
sketch25.addConstraint(Sketcher.Constraint("Horizontal", 2))
sketch25.addConstraint(Sketcher.Constraint("PointOnObject", 1, 3, -1))
sketch25.addConstraint(Sketcher.Constraint("Radius", 1, 2.5))
sketch25.addConstraint(Sketcher.Constraint("DistanceX", 0, 1, 0, 2, 5.0))
sketch25.addConstraint(Sketcher.Constraint("DistanceX", -1, 1, 1, 3, 47.5))
pocket23 = doc.addObject("PartDesign::Pocket", "Pocket022")
body.addObject(pocket23)
pocket23.Profile = sketch25
pocket23.Type = "UpToFirst"
pocket23.Reversed = True

doc.recompute()
